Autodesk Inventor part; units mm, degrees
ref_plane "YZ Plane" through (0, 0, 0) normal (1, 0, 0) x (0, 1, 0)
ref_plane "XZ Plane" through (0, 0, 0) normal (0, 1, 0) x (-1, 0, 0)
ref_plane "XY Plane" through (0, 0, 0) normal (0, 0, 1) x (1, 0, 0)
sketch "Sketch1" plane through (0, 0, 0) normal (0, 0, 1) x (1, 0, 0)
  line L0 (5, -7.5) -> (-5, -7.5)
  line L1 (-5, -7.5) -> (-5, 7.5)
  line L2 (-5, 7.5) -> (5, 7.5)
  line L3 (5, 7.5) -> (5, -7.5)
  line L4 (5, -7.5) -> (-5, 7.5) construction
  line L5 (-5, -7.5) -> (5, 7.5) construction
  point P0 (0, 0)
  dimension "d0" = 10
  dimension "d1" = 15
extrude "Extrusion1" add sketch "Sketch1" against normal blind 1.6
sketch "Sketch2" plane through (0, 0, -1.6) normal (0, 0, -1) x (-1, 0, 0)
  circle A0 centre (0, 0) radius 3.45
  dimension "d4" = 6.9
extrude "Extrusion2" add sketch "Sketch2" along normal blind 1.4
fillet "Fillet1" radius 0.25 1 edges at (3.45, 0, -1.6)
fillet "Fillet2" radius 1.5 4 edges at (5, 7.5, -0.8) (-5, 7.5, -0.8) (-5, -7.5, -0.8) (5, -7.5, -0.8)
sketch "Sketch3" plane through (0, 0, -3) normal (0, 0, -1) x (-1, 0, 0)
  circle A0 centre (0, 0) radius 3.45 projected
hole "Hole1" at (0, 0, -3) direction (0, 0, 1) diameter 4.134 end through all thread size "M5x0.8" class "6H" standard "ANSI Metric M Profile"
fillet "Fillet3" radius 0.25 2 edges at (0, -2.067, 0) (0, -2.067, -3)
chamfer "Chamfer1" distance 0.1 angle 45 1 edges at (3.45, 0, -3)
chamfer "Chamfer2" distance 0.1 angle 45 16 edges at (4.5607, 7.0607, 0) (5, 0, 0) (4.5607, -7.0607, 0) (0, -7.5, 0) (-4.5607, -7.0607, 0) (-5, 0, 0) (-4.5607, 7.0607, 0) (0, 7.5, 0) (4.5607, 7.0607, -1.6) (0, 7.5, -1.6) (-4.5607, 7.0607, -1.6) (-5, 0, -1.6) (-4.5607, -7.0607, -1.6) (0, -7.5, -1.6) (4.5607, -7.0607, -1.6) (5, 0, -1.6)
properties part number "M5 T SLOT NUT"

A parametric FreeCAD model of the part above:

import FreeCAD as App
import Part
import Sketcher
from FreeCAD import Vector
Q = App.Units.Quantity


def edges_at(feature, points):
    """Names of the edges that pass closest to the given points."""
    edges = feature.Shape.Edges
    near = lambda p: min(range(len(edges)), key=lambda i: edges[i].distToShape(Part.Vertex(*p))[0])
    return sorted({f"Edge{near(p) + 1}" for p in points})

doc = App.newDocument("Part")
body = doc.addObject("PartDesign::Body", "Body")

sketch1 = body.newObject("Sketcher::SketchObject", "Sketch")
sketch1.AttachmentSupport = (doc.getObject("XY_Plane"), [""])
sketch1.MapMode = "FlatFace"
sketch1.addGeometry(Part.LineSegment(Vector(-5, -8, 0), Vector(5, -8, 0)), False)
sketch1.addGeometry(Part.LineSegment(Vector(5, -8, 0), Vector(5, 8, 0)), False)
sketch1.addGeometry(Part.LineSegment(Vector(5, 8, 0), Vector(-5, 8, 0)), False)
sketch1.addGeometry(Part.LineSegment(Vector(-5, 8, 0), Vector(-5, -8, 0)), False)
sketch1.addConstraint(Sketcher.Constraint("Coincident", 0, 2, 1, 1))
sketch1.addConstraint(Sketcher.Constraint("Coincident", 1, 2, 2, 1))
sketch1.addConstraint(Sketcher.Constraint("Coincident", 2, 2, 3, 1))
sketch1.addConstraint(Sketcher.Constraint("Coincident", 3, 2, 0, 1))
sketch1.addConstraint(Sketcher.Constraint("Horizontal", 0))
sketch1.addConstraint(Sketcher.Constraint("Vertical", 1))
sketch1.addConstraint(Sketcher.Constraint("Horizontal", 2))
sketch1.addConstraint(Sketcher.Constraint("Vertical", 3))
sketch1.addConstraint(Sketcher.Constraint("Symmetric", 0, 2, 2, 2, -1, 1))
sketch1.addConstraint(Sketcher.Constraint("DistanceX", 0, 1, 0, 2, Q("10 mm")))
sketch1.addConstraint(Sketcher.Constraint("DistanceY", 1, 1, 1, 2, Q("15 mm")))
pad1 = body.newObject("PartDesign::Pad", "Pad")
pad1.Profile = sketch1
pad1.Length = 1.6
pad1.Reversed = True

sketch2 = body.newObject("Sketcher::SketchObject", "Sketch001")
sketch2.AttachmentSupport = (doc.getObject("XY_Plane"), [""])
sketch2.MapMode = "FlatFace"
sketch2.AttachmentOffset = App.Placement(Vector(0, 0, -1.6), App.Rotation())
sketch2.addGeometry(Part.Circle(Vector(0, 0, 0), Vector(0, 0, 1), 3.5), False)
sketch2.addConstraint(Sketcher.Constraint("Coincident", 0, 3, -1, 1))
sketch2.addConstraint(Sketcher.Constraint("Diameter", 0, Q("6.9 mm")))
pad2 = body.newObject("PartDesign::Pad", "Pad001")
pad2.Profile = sketch2
pad2.Length = 1.4
pad2.Reversed = True
doc.recompute()

fillet = body.newObject("PartDesign::Fillet", "Fillet")
fillet.Base = (pad2, edges_at(pad2, [(3.45, 0, -1.6)]))
fillet.Radius = 0.25
doc.recompute()

fillet2 = body.newObject("PartDesign::Fillet", "Fillet001")
fillet2.Base = (fillet, edges_at(fillet, [
    (5, 7.5, -0.8),
    (-5, 7.5, -0.8),
    (-5, -7.5, -0.8),
    (5, -7.5, -0.8),
]))
fillet2.Radius = 1.5

sketch3 = body.newObject("Sketcher::SketchObject", "Sketch002")
sketch3.AttachmentSupport = (doc.getObject("XY_Plane"), [""])
sketch3.MapMode = "FlatFace"
sketch3.AttachmentOffset = App.Placement(Vector(0, 0, -3), App.Rotation())
sketch3.addGeometry(Part.Circle(Vector(0, 0, 0), Vector(0, 0, 1), 2.1), False)
sketch3.addConstraint(Sketcher.Constraint("Coincident", 0, 3, -1, 1))
sketch3.addConstraint(Sketcher.Constraint("Diameter", 0, Q("4.134 mm")))
doc.recompute()
hole = body.newObject("PartDesign::Hole", "Hole")
hole.Profile = sketch3
hole.ThreadType = "None"
hole.Diameter = 4.134
hole.DepthType = "ThroughAll"
hole.Reversed = True
doc.recompute()

fillet3 = body.newObject("PartDesign::Fillet", "Fillet002")
fillet3.Base = (hole, edges_at(hole, [(0, -2.067, 0), (0, -2.067, -3)]))
fillet3.Radius = 0.25
doc.recompute()

chamfer = body.newObject("PartDesign::Chamfer", "Chamfer")
chamfer.Base = (fillet3, edges_at(fillet3, [(3.45, 0, -3)]))
chamfer.Size = 0.1
doc.recompute()

chamfer2 = body.newObject("PartDesign::Chamfer", "Chamfer001")
chamfer2.Base = (chamfer, edges_at(chamfer, [
    (4.561, 7.061, 0),
    (5, 0, 0),
    (4.561, -7.061, 0),
    (0, -7.5, 0),
    (-4.561, -7.061, 0),
    (-5, 0, 0),
    (-4.561, 7.061, 0),
    (0, 7.5, 0),
    (4.561, 7.061, -1.6),
    (0, 7.5, -1.6),
    (-4.561, 7.061, -1.6),
    (-5, 0, -1.6),
    (-4.561, -7.061, -1.6),
    (0, -7.5, -1.6),
    (4.561, -7.061, -1.6),
    (5, 0, -1.6),
]))
chamfer2.Size = 0.1

doc.recompute()
